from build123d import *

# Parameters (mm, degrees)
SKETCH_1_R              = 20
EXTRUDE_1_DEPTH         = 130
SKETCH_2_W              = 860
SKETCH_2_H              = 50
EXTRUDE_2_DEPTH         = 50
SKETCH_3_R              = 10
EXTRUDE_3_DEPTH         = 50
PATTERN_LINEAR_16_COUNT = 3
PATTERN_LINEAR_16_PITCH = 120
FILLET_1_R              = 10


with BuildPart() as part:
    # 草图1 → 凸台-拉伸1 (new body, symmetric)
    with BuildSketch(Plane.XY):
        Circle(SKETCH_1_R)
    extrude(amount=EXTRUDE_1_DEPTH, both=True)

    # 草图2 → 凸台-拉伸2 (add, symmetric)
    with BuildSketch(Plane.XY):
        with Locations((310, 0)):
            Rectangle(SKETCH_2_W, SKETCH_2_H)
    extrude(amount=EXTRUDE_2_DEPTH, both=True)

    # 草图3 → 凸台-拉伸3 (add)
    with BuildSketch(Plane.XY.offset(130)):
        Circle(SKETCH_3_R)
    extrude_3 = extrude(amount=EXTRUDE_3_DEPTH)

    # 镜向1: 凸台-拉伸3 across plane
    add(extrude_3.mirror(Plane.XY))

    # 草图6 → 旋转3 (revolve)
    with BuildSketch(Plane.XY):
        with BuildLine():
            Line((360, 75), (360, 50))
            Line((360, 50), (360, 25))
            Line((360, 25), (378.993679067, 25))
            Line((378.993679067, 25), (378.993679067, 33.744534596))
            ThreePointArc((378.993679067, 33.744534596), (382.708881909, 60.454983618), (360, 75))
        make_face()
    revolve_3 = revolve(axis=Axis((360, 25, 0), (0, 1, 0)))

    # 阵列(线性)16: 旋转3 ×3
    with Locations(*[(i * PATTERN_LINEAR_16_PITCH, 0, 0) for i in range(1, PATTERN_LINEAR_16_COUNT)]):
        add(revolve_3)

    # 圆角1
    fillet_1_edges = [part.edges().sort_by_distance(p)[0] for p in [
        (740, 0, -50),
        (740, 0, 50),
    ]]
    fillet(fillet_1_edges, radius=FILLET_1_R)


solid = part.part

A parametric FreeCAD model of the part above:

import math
import FreeCAD as App
import Part
import Sketcher
Q = App.Units.Quantity


def edges_at(feature, points):
    """Names of the edges that pass closest to the given points."""
    edges = feature.Shape.Edges
    near = lambda p: min(range(len(edges)), key=lambda i: edges[i].distToShape(Part.Vertex(*p))[0])
    return sorted({f"Edge{near(p) + 1}" for p in points})

doc = App.newDocument("Part")
params = doc.addObject("Spreadsheet::Sheet", "Params")
for row, (alias, value) in enumerate([
    ("sketch1_diameter", "40 mm"),
    ("pad1_length", "260 mm"),
    ("sketch2_width", "860 mm"),
    ("sketch2_height", "50 mm"),
    ("pad2_length", "100 mm"),
    ("sketch3_diameter", "20 mm"),
    ("pad3_length", "50 mm"),
    ("sketch4_radius", "25 mm"),
    ("sketch4_height", "50 mm"),
    ("revolution_angle", "360 deg"),
    ("linearpattern_pitch", "120 mm"),
    ("fillet_radius", "10 mm"),
], start=1):
    params.set(f"A{row}", alias)
    params.set(f"B{row}", "=" + value)
    params.setAlias(f"B{row}", alias)

body = doc.addObject("PartDesign::Body", "Body")

# Sketch on XY plane
sketch1 = body.newObject("Sketcher::SketchObject", "Sketch")
sketch1.AttachmentSupport = (doc.getObject("XY_Plane"), [""])
sketch1.MapMode = "FlatFace"
sketch1.addGeometry(Part.Circle(App.Vector(0, 0, 0), App.Vector(0, 0, 1), 20), False)
sketch1.addConstraint([
    Sketcher.Constraint("Coincident", 0, 3, -1, 1),
    Sketcher.Constraint("Diameter", 0, Q("40 mm")),
])
sketch1.setExpression("Constraints[1]", "Params.sketch1_diameter")
pad1 = body.newObject("PartDesign::Pad", "Pad")
pad1.Profile = sketch1
pad1.setExpression("Length", "Params.pad1_length")
pad1.Midplane = True

# Sketch on XY plane
sketch2 = body.newObject("Sketcher::SketchObject", "Sketch001")
sketch2.AttachmentSupport = (doc.getObject("XY_Plane"), [""])
sketch2.MapMode = "FlatFace"
sketch2.addGeometry([
    Part.LineSegment(App.Vector(-120, 25, 0), App.Vector(-120, -25, 0)),
    Part.LineSegment(App.Vector(-120, -25, 0), App.Vector(740, -25, 0)),
    Part.LineSegment(App.Vector(740, -25, 0), App.Vector(740, 25, 0)),
    Part.LineSegment(App.Vector(740, 25, 0), App.Vector(-120, 25, 0)),
], False)
sketch2.addConstraint([
    Sketcher.Constraint("Coincident", 0, 2, 1, 1),
    Sketcher.Constraint("Coincident", 1, 2, 2, 1),
    Sketcher.Constraint("Coincident", 2, 2, 3, 1),
    Sketcher.Constraint("Coincident", 3, 2, 0, 1),
    Sketcher.Constraint("Vertical", 0),
    Sketcher.Constraint("Horizontal", 1),
    Sketcher.Constraint("Vertical", 2),
    Sketcher.Constraint("Horizontal", 3),
    Sketcher.Constraint("DistanceX", 1, 1, 1, 2, Q("860 mm")),
    Sketcher.Constraint("DistanceY", 0, 2, 0, 1, Q("50 mm")),
    Sketcher.Constraint("DistanceX", 0, 2, -1, 1, Q("120 mm")),
    Sketcher.Constraint("DistanceY", 0, 2, -1, 1, Q("25 mm")),
])
sketch2.setExpression("Constraints[8]", "Params.sketch2_width")
sketch2.setExpression("Constraints[9]", "Params.sketch2_height")
pad2 = body.newObject("PartDesign::Pad", "Pad001")
pad2.Profile = sketch2
pad2.setExpression("Length", "Params.pad2_length")
pad2.Midplane = True

# Sketch on XY plane
sketch3 = body.newObject("Sketcher::SketchObject", "Sketch002")
sketch3.AttachmentSupport = (doc.getObject("XY_Plane"), [""])
sketch3.MapMode = "FlatFace"
sketch3.AttachmentOffset = App.Placement(App.Vector(0, 0, 130), App.Rotation())
sketch3.addGeometry(Part.Circle(App.Vector(0, 0, 0), App.Vector(0, 0, 1), 10), False)
sketch3.addConstraint([
    Sketcher.Constraint("Coincident", 0, 3, -1, 1),
    Sketcher.Constraint("Diameter", 0, Q("20 mm")),
])
sketch3.setExpression("Constraints[1]", "Params.sketch3_diameter")
pad3 = body.newObject("PartDesign::Pad", "Pad002")
pad3.Profile = sketch3
pad3.setExpression("Length", "Params.pad3_length")
doc.recompute()

mirrored = body.newObject("PartDesign::Mirrored", "Mirrored")
mirrored.Originals = [pad3]
mirrored.MirrorPlane = (doc.getObject("XY_Plane"), [""])
body.Tip = mirrored

# Sketch on XY plane
sketch4 = body.newObject("Sketcher::SketchObject", "Sketch003")
sketch4.AttachmentSupport = (doc.getObject("XY_Plane"), [""])
sketch4.MapMode = "FlatFace"
sketch4.addGeometry([
    Part.LineSegment(App.Vector(360, 75, 0), App.Vector(360, 25, 0)),
    Part.LineSegment(App.Vector(360, 25, 0), App.Vector(379, 25, 0)),
    Part.LineSegment(App.Vector(379, 25, 0), App.Vector(379, 34, 0)),
    Part.ArcOfCircle(Part.Circle(App.Vector(360, 50, 0), App.Vector(0, 0, 1), 25), math.radians(-41), math.radians(90)),
], False)
sketch4.addGeometry(Part.LineSegment(App.Vector(360, 25, 0), App.Vector(360, 75, 0)), True)  # axis
sketch4.addConstraint([
    Sketcher.Constraint("Coincident", 0, 2, 1, 1),
    Sketcher.Constraint("Coincident", 1, 2, 2, 1),
    Sketcher.Constraint("Coincident", 2, 2, 3, 1),
    Sketcher.Constraint("Coincident", 3, 2, 0, 1),
    Sketcher.Constraint("Vertical", 0),
    Sketcher.Constraint("Horizontal", 1),
    Sketcher.Constraint("Vertical", 2),
    Sketcher.Constraint("Vertical", 4),
    Sketcher.Constraint("Coincident", 4, 1, 0, 2),
    Sketcher.Constraint("Vertical", 3, 3, 0, 2),
    Sketcher.Constraint("Equal", 0, 4),
    Sketcher.Constraint("Radius", 3, Q("25 mm")),
    Sketcher.Constraint("DistanceY", 0, 2, 0, 1, Q("50 mm")),
    Sketcher.Constraint("DistanceX", -1, 1, 3, 3, Q("360 mm")),
    Sketcher.Constraint("DistanceY", -1, 1, 3, 3, Q("50 mm")),
    Sketcher.Constraint("DistanceX", 1, 1, 1, 2, Q("18.993679 mm")),
])
sketch4.setExpression("Constraints[11]", "Params.sketch4_radius")
sketch4.setExpression("Constraints[12]", "Params.sketch4_height")
revolution = body.newObject("PartDesign::Revolution", "Revolution")
revolution.Profile = sketch4
revolution.ReferenceAxis = (sketch4, ["Axis0"])
revolution.setExpression("Angle", "Params.revolution_angle")
doc.recompute()

linearpattern = body.newObject("PartDesign::LinearPattern", "LinearPattern")
linearpattern.Originals = [revolution]
linearpattern.Direction = (doc.getObject("X_Axis"), [""])
linearpattern.Mode = "offset"
linearpattern.setExpression("Offset", "Params.linearpattern_pitch")
linearpattern.Occurrences = 3
body.Tip = linearpattern
doc.recompute()

fillet = body.newObject("PartDesign::Fillet", "Fillet")
fillet.Base = (linearpattern, edges_at(linearpattern, [(740, 0, -50), (740, 0, 50)]))
fillet.setExpression("Radius", "Params.fillet_radius")

doc.recompute()
